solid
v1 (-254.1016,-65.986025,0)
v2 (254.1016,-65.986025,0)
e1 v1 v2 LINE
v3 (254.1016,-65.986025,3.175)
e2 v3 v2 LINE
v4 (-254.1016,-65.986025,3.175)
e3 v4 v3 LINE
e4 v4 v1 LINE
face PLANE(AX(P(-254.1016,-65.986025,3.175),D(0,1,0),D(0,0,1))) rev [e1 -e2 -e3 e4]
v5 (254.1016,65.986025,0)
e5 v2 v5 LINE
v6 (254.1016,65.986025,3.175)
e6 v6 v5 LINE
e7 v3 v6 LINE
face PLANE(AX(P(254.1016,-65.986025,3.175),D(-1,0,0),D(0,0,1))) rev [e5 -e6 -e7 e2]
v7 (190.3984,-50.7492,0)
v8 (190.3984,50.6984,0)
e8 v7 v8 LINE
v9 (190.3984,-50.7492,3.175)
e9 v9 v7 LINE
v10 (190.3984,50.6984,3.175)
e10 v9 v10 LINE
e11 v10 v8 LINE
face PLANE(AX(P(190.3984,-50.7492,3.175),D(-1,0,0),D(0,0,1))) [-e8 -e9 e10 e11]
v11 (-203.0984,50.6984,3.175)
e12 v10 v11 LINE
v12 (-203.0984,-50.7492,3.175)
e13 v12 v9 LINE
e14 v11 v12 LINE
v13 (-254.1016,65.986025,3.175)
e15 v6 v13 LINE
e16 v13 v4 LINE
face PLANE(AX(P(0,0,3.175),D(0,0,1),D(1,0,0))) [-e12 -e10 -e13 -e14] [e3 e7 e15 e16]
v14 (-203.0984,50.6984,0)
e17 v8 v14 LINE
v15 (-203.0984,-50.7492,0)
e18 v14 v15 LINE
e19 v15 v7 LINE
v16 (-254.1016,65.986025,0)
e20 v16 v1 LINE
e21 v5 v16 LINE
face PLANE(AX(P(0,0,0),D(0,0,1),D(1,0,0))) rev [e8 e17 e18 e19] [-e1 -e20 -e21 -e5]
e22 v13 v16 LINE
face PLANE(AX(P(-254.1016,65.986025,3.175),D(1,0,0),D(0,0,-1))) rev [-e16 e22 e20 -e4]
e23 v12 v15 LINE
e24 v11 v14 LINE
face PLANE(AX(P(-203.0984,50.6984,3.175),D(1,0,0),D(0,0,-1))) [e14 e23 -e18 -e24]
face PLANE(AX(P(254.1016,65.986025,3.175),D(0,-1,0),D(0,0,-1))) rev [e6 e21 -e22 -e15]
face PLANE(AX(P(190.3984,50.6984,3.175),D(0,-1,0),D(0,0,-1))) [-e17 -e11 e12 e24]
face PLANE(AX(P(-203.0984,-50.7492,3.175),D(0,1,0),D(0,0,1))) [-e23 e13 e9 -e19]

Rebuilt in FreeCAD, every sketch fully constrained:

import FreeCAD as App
import Part
import Sketcher
from FreeCAD import Vector
Q = App.Units.Quantity

doc = App.newDocument("Part")
body = doc.addObject("PartDesign::Body", "Body")

# Sketch on XY plane
sketch1 = body.newObject("Sketcher::SketchObject", "Sketch")
sketch1.AttachmentSupport = (doc.getObject("XY_Plane"), [""])
sketch1.MapMode = "FlatFace"
sketch1.addGeometry(Part.LineSegment(Vector(-254.1016, 65.986025, 0), Vector(-254.1016, -65.986025, 0)), False)
sketch1.addGeometry(Part.LineSegment(Vector(-254.1016, -65.986025, 0), Vector(254.1016, -65.986025, 0)), False)
sketch1.addGeometry(Part.LineSegment(Vector(254.1016, -65.986025, 0), Vector(254.1016, 65.986025, 0)), False)
sketch1.addGeometry(Part.LineSegment(Vector(254.1016, 65.986025, 0), Vector(-254.1016, 65.986025, 0)), False)
sketch1.addGeometry(Part.LineSegment(Vector(190.3984, -50.7492, 0), Vector(-203.0984, -50.7492, 0)), False)
sketch1.addGeometry(Part.LineSegment(Vector(-203.0984, -50.7492, 0), Vector(-203.0984, 50.6984, 0)), False)
sketch1.addGeometry(Part.LineSegment(Vector(-203.0984, 50.6984, 0), Vector(190.3984, 50.6984, 0)), False)
sketch1.addGeometry(Part.LineSegment(Vector(190.3984, 50.6984, 0), Vector(190.3984, -50.7492, 0)), False)
sketch1.addConstraint(Sketcher.Constraint("Coincident", 0, 2, 1, 1))
sketch1.addConstraint(Sketcher.Constraint("Coincident", 1, 2, 2, 1))
sketch1.addConstraint(Sketcher.Constraint("Coincident", 2, 2, 3, 1))
sketch1.addConstraint(Sketcher.Constraint("Coincident", 3, 2, 0, 1))
sketch1.addConstraint(Sketcher.Constraint("Coincident", 4, 2, 5, 1))
sketch1.addConstraint(Sketcher.Constraint("Coincident", 5, 2, 6, 1))
sketch1.addConstraint(Sketcher.Constraint("Coincident", 6, 2, 7, 1))
sketch1.addConstraint(Sketcher.Constraint("Coincident", 7, 2, 4, 1))
sketch1.addConstraint(Sketcher.Constraint("Vertical", 0))
sketch1.addConstraint(Sketcher.Constraint("Horizontal", 1))
sketch1.addConstraint(Sketcher.Constraint("Vertical", 2))
sketch1.addConstraint(Sketcher.Constraint("Horizontal", 3))
sketch1.addConstraint(Sketcher.Constraint("Horizontal", 4))
sketch1.addConstraint(Sketcher.Constraint("Vertical", 5))
sketch1.addConstraint(Sketcher.Constraint("Horizontal", 6))
sketch1.addConstraint(Sketcher.Constraint("Vertical", 7))
sketch1.addConstraint(Sketcher.Constraint("Symmetric", 0, 2, 2, 2, -1, 1))
sketch1.addConstraint(Sketcher.Constraint("DistanceX", 4, 2, 1, 2, Q("18 in")))
sketch1.addConstraint(Sketcher.Constraint("DistanceX", 3, 2, 6, 2, Q("17.5 in")))
sketch1.addConstraint(Sketcher.Constraint("DistanceX", 1, 1, 1, 2, Q("20.008 in")))
sketch1.addConstraint(Sketcher.Constraint("DistanceY", 5, 1, 5, 2, Q("3.994 in")))
sketch1.addConstraint(Sketcher.Constraint("DistanceY", 4, 2, -1, 1, Q("1.998 in")))
sketch1.addConstraint(Sketcher.Constraint("DistanceY", 0, 2, 0, 1, 131.97205))
pad1 = body.newObject("PartDesign::Pad", "Pad")
pad1.Profile = sketch1
pad1.Length = Q("0.125 in")

doc.recompute()
